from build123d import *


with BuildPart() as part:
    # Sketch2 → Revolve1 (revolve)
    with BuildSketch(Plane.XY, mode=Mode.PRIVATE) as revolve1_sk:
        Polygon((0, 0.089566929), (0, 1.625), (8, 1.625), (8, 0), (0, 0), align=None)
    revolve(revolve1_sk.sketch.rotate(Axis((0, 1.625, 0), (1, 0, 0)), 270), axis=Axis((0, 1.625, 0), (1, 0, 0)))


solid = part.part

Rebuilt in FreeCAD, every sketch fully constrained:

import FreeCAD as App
import Part
import Sketcher

doc = App.newDocument("Part")
params = doc.addObject("Spreadsheet::Sheet", "Params")
for row, (alias, value) in enumerate([
    ("sketch1_width", "8 mm"),
    ("revolution_angle", "360 deg"),
], start=1):
    params.set(f"A{row}", alias)
    params.set(f"B{row}", "=" + value)
    params.setAlias(f"B{row}", alias)

body = doc.addObject("PartDesign::Body", "Body")

# Sketch on XY plane
sketch1 = doc.addObject("Sketcher::SketchObject", "Sketch")
body.addObject(sketch1)
sketch1.AttachmentSupport = (doc.XY_Plane, [""])
sketch1.MapMode = "FlatFace"
sketch1.addGeometry(Part.LineSegment(App.Vector(0, 1.625, 0), App.Vector(0, 0, 0)), False)
sketch1.addGeometry(Part.LineSegment(App.Vector(0, 0, 0), App.Vector(8, 0, 0)), False)
sketch1.addGeometry(Part.LineSegment(App.Vector(8, 0, 0), App.Vector(8, 1.625, 0)), False)
sketch1.addGeometry(Part.LineSegment(App.Vector(8, 1.625, 0), App.Vector(0, 1.625, 0)), False)
sketch1.addGeometry(Part.LineSegment(App.Vector(0, 1.625, 0), App.Vector(8, 1.625, 0)), True)  # axis
sketch1.addConstraint(Sketcher.Constraint("Coincident", 0, 2, 1, 1))
sketch1.addConstraint(Sketcher.Constraint("Coincident", 1, 2, 2, 1))
sketch1.addConstraint(Sketcher.Constraint("Coincident", 2, 2, 3, 1))
sketch1.addConstraint(Sketcher.Constraint("Coincident", 3, 2, 0, 1))
sketch1.addConstraint(Sketcher.Constraint("Vertical", 0))
sketch1.addConstraint(Sketcher.Constraint("Horizontal", 1))
sketch1.addConstraint(Sketcher.Constraint("Vertical", 2))
sketch1.addConstraint(Sketcher.Constraint("Horizontal", 3))
sketch1.addConstraint(Sketcher.Constraint("Horizontal", 4))
sketch1.addConstraint(Sketcher.Constraint("Coincident", 0, 2, -1, 1))
sketch1.addConstraint(Sketcher.Constraint("Coincident", 4, 1, 3, 2))
sketch1.addConstraint(Sketcher.Constraint("Vertical", 1, 2, 4, 2))
sketch1.addConstraint(Sketcher.Constraint("DistanceX", 1, 1, 1, 2, 8.0))
sketch1.addConstraint(Sketcher.Constraint("DistanceY", 0, 2, 0, 1, 1.625))
sketch1.setExpression("Constraints[12]", "Params.sketch1_width")
revolution = doc.addObject("PartDesign::Revolution", "Revolution")
body.addObject(revolution)
revolution.Profile = sketch1
revolution.ReferenceAxis = (sketch1, ["Axis0"])
revolution.setExpression("Angle", "Params.revolution_angle")

doc.recompute()
